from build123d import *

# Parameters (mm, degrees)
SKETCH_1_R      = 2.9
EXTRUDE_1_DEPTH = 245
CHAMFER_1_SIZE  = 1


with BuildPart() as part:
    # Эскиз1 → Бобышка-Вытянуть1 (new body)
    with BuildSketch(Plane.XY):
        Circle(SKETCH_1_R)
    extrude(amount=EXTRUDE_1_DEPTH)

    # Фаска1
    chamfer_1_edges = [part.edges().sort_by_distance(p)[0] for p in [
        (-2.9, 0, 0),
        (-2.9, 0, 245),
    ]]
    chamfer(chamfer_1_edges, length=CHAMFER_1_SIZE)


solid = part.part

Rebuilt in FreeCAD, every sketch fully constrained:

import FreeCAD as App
import Part
import Sketcher
from FreeCAD import Vector


def edges_at(feature, points):
    """Names of the edges that pass closest to the given points."""
    edges = feature.Shape.Edges
    near = lambda p: min(range(len(edges)), key=lambda i: edges[i].distToShape(Part.Vertex(*p))[0])
    return sorted({f"Edge{near(p) + 1}" for p in points})

doc = App.newDocument("Part")
body = doc.addObject("PartDesign::Body", "Body")

sketch1 = body.newObject("Sketcher::SketchObject", "Sketch")
sketch1.AttachmentSupport = (doc.getObject("XY_Plane"), [""])
sketch1.MapMode = "FlatFace"
sketch1.addGeometry(Part.Circle(Vector(0, 0, 0), Vector(0, 0, 1), 2.9), False)
sketch1.addConstraint(Sketcher.Constraint("Coincident", 0, 3, -1, 1))
sketch1.addConstraint(Sketcher.Constraint("Diameter", 0, 5.8))
pad1 = body.newObject("PartDesign::Pad", "Pad")
pad1.Profile = sketch1
pad1.Length = 245
doc.recompute()

chamfer = body.newObject("PartDesign::Chamfer", "Chamfer")
chamfer.Base = (pad1, edges_at(pad1, [(-2.9, 0, 0), (-2.9, 0, 245)]))
chamfer.Size = 1

doc.recompute()
